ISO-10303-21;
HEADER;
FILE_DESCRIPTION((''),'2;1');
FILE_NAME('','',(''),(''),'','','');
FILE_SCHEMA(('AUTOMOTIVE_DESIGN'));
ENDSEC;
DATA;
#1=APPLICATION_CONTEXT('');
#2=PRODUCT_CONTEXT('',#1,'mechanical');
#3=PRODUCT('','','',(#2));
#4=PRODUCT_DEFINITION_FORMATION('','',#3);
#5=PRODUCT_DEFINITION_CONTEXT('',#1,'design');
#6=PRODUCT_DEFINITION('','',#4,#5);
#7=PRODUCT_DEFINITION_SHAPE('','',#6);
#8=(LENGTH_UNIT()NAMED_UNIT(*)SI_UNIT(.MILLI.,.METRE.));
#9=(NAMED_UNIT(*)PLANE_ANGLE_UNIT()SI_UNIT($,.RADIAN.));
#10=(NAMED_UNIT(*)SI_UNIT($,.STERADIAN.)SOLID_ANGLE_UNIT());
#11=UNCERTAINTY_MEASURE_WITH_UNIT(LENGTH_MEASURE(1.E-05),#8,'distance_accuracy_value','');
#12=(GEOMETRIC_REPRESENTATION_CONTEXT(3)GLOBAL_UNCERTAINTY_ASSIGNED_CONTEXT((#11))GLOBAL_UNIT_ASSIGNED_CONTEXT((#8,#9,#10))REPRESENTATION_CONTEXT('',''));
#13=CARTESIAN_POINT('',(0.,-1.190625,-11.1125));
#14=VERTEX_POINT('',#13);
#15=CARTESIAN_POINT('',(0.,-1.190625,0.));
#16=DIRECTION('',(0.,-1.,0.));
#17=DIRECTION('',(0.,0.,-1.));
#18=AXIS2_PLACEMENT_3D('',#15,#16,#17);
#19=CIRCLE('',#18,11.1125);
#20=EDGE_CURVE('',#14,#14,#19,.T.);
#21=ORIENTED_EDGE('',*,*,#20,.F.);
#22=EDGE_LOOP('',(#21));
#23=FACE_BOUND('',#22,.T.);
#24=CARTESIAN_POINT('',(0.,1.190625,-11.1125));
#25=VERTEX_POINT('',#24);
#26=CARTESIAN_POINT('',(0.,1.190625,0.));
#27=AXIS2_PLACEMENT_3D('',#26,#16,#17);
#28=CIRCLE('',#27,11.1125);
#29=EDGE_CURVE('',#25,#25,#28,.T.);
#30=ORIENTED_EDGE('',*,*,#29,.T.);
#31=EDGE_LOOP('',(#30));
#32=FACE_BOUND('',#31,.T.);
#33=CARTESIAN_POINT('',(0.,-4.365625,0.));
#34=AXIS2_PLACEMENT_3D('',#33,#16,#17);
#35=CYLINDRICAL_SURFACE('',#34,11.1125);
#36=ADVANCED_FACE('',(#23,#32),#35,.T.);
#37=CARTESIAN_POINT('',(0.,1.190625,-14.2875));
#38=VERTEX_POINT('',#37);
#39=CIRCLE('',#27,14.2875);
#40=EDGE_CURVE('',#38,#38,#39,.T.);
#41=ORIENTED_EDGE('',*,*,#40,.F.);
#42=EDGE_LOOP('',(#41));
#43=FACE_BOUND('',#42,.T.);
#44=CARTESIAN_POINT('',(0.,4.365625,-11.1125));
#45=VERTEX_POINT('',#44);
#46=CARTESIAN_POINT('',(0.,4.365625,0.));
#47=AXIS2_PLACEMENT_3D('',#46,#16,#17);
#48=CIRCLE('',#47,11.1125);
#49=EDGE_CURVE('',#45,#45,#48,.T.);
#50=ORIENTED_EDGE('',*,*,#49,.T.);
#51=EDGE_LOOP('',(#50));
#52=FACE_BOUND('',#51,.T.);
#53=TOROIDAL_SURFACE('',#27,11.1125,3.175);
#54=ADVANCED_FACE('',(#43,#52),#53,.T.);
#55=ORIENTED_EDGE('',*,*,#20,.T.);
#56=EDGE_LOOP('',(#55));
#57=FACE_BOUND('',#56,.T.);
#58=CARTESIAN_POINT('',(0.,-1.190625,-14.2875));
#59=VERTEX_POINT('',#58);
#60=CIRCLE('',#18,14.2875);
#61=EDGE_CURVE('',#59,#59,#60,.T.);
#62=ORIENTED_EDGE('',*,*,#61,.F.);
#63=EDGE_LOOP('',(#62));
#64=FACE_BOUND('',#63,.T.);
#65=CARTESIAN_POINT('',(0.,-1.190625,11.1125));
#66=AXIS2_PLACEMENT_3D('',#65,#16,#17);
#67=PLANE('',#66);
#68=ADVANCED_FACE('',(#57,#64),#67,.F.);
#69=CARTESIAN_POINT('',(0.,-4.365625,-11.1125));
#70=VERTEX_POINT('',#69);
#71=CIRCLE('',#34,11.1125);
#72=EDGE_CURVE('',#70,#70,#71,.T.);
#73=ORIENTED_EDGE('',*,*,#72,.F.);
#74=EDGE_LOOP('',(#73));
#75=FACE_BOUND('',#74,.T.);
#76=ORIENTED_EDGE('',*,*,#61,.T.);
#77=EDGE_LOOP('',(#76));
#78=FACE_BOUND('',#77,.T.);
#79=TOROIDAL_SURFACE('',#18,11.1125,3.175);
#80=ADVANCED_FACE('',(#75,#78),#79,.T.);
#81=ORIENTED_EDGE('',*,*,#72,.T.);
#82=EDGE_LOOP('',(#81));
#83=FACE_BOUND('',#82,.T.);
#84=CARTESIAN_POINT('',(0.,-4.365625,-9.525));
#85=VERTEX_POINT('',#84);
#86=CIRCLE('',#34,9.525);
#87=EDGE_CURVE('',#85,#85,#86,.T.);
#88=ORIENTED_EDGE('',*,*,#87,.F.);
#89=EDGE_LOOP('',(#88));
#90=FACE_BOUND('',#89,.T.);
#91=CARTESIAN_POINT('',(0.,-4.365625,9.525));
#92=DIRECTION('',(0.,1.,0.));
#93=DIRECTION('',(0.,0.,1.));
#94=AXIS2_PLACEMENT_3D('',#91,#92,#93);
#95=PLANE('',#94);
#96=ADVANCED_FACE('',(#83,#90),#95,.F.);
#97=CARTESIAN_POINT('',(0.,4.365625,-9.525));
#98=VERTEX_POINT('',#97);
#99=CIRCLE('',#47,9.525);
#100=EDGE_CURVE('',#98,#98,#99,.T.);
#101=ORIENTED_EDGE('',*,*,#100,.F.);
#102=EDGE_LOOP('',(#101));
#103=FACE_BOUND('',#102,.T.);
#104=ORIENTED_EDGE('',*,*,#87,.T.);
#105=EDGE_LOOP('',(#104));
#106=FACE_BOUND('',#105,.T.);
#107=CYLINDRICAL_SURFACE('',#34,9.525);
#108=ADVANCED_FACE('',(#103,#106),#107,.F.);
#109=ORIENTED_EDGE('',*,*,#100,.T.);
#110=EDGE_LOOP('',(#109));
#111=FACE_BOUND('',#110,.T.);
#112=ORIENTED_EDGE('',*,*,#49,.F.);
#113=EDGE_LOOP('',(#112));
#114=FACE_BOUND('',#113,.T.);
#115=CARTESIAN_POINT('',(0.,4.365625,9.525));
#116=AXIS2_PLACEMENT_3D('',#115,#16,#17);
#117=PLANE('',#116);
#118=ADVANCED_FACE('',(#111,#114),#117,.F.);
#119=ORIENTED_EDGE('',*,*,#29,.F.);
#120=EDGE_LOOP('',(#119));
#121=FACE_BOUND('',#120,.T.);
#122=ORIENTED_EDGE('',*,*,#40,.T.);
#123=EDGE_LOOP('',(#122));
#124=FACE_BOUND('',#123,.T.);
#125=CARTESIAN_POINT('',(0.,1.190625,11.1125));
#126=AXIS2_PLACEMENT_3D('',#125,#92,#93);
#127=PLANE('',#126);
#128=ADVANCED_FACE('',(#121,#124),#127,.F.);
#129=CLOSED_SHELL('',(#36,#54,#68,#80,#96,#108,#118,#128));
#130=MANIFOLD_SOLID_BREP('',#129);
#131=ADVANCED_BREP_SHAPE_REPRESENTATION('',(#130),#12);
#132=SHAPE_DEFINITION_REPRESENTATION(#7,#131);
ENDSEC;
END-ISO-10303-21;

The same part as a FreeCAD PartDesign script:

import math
import FreeCAD as App
import Part
import Sketcher
from FreeCAD import Vector
Q = App.Units.Quantity

doc = App.newDocument("Part")
params = doc.addObject("Spreadsheet::Sheet", "Params")
for row, (alias, value) in enumerate([
    ("sketch1_radius", "0.125 in"),
    ("sketch1_width", "0.34375 in"),
    ("sketch1_height", "0.0625 in"),
    ("revolution_angle", "360 deg"),
], start=1):
    params.set(f"A{row}", alias)
    params.set(f"B{row}", "=" + value)
    params.setAlias(f"B{row}", alias)

body = doc.addObject("PartDesign::Body", "Body")

sketch1 = body.newObject("Sketcher::SketchObject", "Sketch")
sketch1.AttachmentSupport = (doc.getObject("YZ_Plane"), [""])
sketch1.MapMode = "FlatFace"
sketch1.addGeometry([
    Part.LineSegment(Vector(-4.4, 9.5, 0), Vector(4.4, 9.5, 0)),
    Part.LineSegment(Vector(4.4, 9.5, 0), Vector(4.4, 11.1, 0)),
    Part.ArcOfCircle(Part.Circle(Vector(1.2, 11.1, 0), Vector(0, 0, 1), 3.2), math.radians(0), math.radians(90)),
    Part.LineSegment(Vector(1.2, 14.3, 0), Vector(1.2, 11.1, 0)),
    Part.LineSegment(Vector(1.2, 11.1, 0), Vector(-1.2, 11.1, 0)),
    Part.LineSegment(Vector(-1.2, 11.1, 0), Vector(-1.2, 14.3, 0)),
    Part.ArcOfCircle(Part.Circle(Vector(-1.2, 11.1, 0), Vector(0, 0, 1), 3.2), math.radians(90), math.radians(180)),
    Part.LineSegment(Vector(-4.4, 11.1, 0), Vector(-4.4, 9.5, 0)),
], False)
sketch1.addConstraint([
    Sketcher.Constraint("Coincident", 0, 2, 1, 1),
    Sketcher.Constraint("Tangent", 1, 2, 2, 1),
    Sketcher.Constraint("Coincident", 2, 2, 3, 1),
    Sketcher.Constraint("Coincident", 3, 2, 4, 1),
    Sketcher.Constraint("Coincident", 4, 2, 5, 1),
    Sketcher.Constraint("Coincident", 5, 2, 6, 1),
    Sketcher.Constraint("Tangent", 6, 2, 7, 1),
    Sketcher.Constraint("Coincident", 7, 2, 0, 1),
    Sketcher.Constraint("Horizontal", 0),
    Sketcher.Constraint("Vertical", 1),
    Sketcher.Constraint("Vertical", 3),
    Sketcher.Constraint("Horizontal", 4),
    Sketcher.Constraint("Vertical", 5),
    Sketcher.Constraint("Vertical", 7),
    Sketcher.Constraint("Coincident", 3, 2, 2, 3),
    Sketcher.Constraint("Coincident", 4, 2, 6, 3),
    Sketcher.Constraint("Equal", 2, 6),
    Sketcher.Constraint("Radius", 2, Q("0.125 in")),
    Sketcher.Constraint("DistanceX", 0, 1, 0, 2, Q("0.34375 in")),
    Sketcher.Constraint("DistanceY", 1, 1, 1, 2, Q("0.0625 in")),
    Sketcher.Constraint("DistanceX", -1, 1, 2, 3, Q("0.046875 in")),
    Sketcher.Constraint("DistanceY", -1, 1, 2, 3, Q("0.4375 in")),
])
sketch1.setExpression("Constraints[17]", "Params.sketch1_radius")
sketch1.setExpression("Constraints[18]", "Params.sketch1_width")
sketch1.setExpression("Constraints[19]", "Params.sketch1_height")
revolution = body.newObject("PartDesign::Revolution", "Revolution")
revolution.Profile = sketch1
revolution.ReferenceAxis = (sketch1, ["H_Axis"])
revolution.setExpression("Angle", "Params.revolution_angle")

doc.recompute()
